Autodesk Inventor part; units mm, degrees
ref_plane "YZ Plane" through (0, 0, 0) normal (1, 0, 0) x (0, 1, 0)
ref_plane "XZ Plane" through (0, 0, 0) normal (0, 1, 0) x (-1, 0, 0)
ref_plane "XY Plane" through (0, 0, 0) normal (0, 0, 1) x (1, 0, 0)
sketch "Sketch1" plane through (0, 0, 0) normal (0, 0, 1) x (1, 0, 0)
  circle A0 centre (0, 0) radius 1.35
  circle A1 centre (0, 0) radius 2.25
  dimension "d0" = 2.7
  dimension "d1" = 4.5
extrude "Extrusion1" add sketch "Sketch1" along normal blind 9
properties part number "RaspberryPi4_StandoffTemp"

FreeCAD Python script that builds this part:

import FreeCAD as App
import Part
import Sketcher
from FreeCAD import Vector

doc = App.newDocument("Part")
params = doc.addObject("Spreadsheet::Sheet", "Params")
for row, (alias, value) in enumerate([
    ("sketch1_diameter", "4.5 mm"),
    ("sketch1_diameter2", "2.7 mm"),
    ("pad1_length", "9 mm"),
], start=1):
    params.set(f"A{row}", alias)
    params.set(f"B{row}", "=" + value)
    params.setAlias(f"B{row}", alias)

body = doc.addObject("PartDesign::Body", "Body")

# Sketch on XY plane
sketch1 = doc.addObject("Sketcher::SketchObject", "Sketch")
body.addObject(sketch1)
sketch1.AttachmentSupport = (doc.XY_Plane, [""])
sketch1.MapMode = "FlatFace"
sketch1.addGeometry([
    Part.Circle(Vector(0, 0, 0), Vector(0, 0, 1), 2.25),
    Part.Circle(Vector(0, 0, 0), Vector(0, 0, 1), 1.35),
], False)
sketch1.addConstraint([
    Sketcher.Constraint("Coincident", 0, 3, -1, 1),
    Sketcher.Constraint("Coincident", 1, 3, -1, 1),
    Sketcher.Constraint("Diameter", 0, 4.5),
    Sketcher.Constraint("Diameter", 1, 2.7),
])
sketch1.setExpression("Constraints[2]", "Params.sketch1_diameter")
sketch1.setExpression("Constraints[3]", "Params.sketch1_diameter2")
pad1 = doc.addObject("PartDesign::Pad", "Pad")
body.addObject(pad1)
pad1.Profile = sketch1
pad1.setExpression("Length", "Params.pad1_length")

doc.recompute()
